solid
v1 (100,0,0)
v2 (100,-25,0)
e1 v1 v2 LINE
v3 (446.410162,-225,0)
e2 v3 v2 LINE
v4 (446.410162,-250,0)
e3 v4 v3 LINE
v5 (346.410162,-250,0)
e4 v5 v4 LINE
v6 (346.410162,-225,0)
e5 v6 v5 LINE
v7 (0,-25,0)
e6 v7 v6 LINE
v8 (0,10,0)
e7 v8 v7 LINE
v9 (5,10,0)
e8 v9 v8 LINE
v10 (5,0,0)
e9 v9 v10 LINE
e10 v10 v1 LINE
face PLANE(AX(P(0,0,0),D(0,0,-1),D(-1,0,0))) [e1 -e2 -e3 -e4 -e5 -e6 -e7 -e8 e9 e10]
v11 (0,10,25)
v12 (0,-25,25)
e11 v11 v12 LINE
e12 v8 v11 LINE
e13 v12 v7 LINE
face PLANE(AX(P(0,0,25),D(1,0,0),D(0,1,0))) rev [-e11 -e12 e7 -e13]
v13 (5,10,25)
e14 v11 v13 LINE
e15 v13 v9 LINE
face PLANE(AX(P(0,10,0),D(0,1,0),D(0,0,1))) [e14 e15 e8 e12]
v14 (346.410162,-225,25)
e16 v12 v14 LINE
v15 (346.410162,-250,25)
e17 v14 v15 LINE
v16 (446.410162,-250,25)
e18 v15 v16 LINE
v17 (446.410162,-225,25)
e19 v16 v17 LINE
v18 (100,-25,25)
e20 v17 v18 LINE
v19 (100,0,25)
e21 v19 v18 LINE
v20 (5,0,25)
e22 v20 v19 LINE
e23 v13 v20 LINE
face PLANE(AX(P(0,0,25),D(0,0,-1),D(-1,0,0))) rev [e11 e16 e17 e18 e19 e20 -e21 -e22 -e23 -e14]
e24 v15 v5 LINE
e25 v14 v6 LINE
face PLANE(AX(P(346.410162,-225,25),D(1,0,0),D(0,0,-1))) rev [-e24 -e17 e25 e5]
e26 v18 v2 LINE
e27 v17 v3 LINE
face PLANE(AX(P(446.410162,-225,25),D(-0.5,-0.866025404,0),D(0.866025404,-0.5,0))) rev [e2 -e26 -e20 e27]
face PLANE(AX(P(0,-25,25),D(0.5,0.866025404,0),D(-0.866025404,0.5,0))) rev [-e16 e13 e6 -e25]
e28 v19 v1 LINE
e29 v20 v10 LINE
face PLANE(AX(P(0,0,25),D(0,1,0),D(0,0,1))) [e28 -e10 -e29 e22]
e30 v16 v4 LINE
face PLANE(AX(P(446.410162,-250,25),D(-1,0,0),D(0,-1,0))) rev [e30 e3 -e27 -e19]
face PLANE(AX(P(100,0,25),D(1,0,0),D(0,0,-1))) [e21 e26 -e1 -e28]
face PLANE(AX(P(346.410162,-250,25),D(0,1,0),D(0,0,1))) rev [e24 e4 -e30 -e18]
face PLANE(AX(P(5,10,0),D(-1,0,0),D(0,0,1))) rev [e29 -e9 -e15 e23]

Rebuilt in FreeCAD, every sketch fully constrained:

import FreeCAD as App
import Part
import Sketcher

V = App.Vector
Q = App.Units.Quantity

doc = App.newDocument("Part")
params = doc.addObject("Spreadsheet::Sheet", "Params")
for row, (alias, value) in enumerate([
    ("sketch1_width", "100 mm"),
    ("sketch1_height", "25 mm"),
    ("sketch1_length", "400 mm"),
    ("pad1_length", "25 mm"),
    ("sketch2_width", "5 mm"),
    ("sketch2_height", "25 mm"),
    ("pad2_length", "10 mm"),
], start=1):
    params.set(f"A{row}", alias)
    params.set(f"B{row}", "=" + value)
    params.setAlias(f"B{row}", alias)

body = doc.addObject("PartDesign::Body", "Body")

# Sketch on XY plane
sketch1 = body.newObject("Sketcher::SketchObject", "Sketch")
sketch1.AttachmentSupport = (doc.getObject("XY_Plane"), [""])
sketch1.MapMode = "FlatFace"
sketch1.addGeometry([
    Part.LineSegment(V(100, 0, 0), V(0, 0, 0)),  # 0
    Part.LineSegment(V(0, 0, 0), V(0, -25, 0)),  # 1
    Part.LineSegment(V(0, -25, 0), V(346, -225, 0)),  # 2
    Part.LineSegment(V(346, -225, 0), V(346, -250, 0)),  # 3
    Part.LineSegment(V(346, -250, 0), V(446, -250, 0)),  # 4
    Part.LineSegment(V(446, -250, 0), V(446, -225, 0)),  # 5
    Part.LineSegment(V(446, -225, 0), V(100, -25, 0)),  # 6
    Part.LineSegment(V(100, -25, 0), V(100, 0, 0)),  # 7
], False)
sketch1.addConstraint([
    Sketcher.Constraint("Coincident", 0, 2, 1, 1),
    Sketcher.Constraint("Coincident", 1, 2, 2, 1),
    Sketcher.Constraint("Coincident", 2, 2, 3, 1),
    Sketcher.Constraint("Coincident", 3, 2, 4, 1),
    Sketcher.Constraint("Coincident", 4, 2, 5, 1),
    Sketcher.Constraint("Coincident", 5, 2, 6, 1),
    Sketcher.Constraint("Coincident", 6, 2, 7, 1),
    Sketcher.Constraint("Coincident", 7, 2, 0, 1),
    Sketcher.Constraint("Horizontal", 0),
    Sketcher.Constraint("Vertical", 1),
    Sketcher.Constraint("Vertical", 3),
    Sketcher.Constraint("Horizontal", 4),
    Sketcher.Constraint("Vertical", 5),
    Sketcher.Constraint("Vertical", 7),
    Sketcher.Constraint("Coincident", 0, 2, -1, 1),
    Sketcher.Constraint("Parallel", 2, 6),
    Sketcher.Constraint("Horizontal", 2, 2, 5, 2),
    Sketcher.Constraint("Horizontal", 1, 2, 6, 2),
    Sketcher.Constraint("Equal", 1, 3),
    Sketcher.Constraint("DistanceX", 0, 2, 0, 1, Q("100 mm")),
    Sketcher.Constraint("DistanceY", 1, 2, 1, 1, Q("25 mm")),
    Sketcher.Constraint("Angle", 2, Q("-30 deg")),
    Sketcher.Constraint("Distance", 2, Q("400 mm")),
])
sketch1.setExpression("Constraints[19]", "Params.sketch1_width")
sketch1.setExpression("Constraints[20]", "Params.sketch1_height")
sketch1.setExpression("Constraints[22]", "Params.sketch1_length")
pad1 = body.newObject("PartDesign::Pad", "Pad")
pad1.Profile = sketch1
pad1.setExpression("Length", "Params.pad1_length")

# Sketch on XZ plane
sketch2 = body.newObject("Sketcher::SketchObject", "Sketch001")
sketch2.AttachmentSupport = (doc.getObject("XZ_Plane"), [""])
sketch2.MapMode = "FlatFace"
sketch2.addGeometry([
    Part.LineSegment(V(0, 0, 0), V(0, 25, 0)),
    Part.LineSegment(V(0, 25, 0), V(5, 25, 0)),
    Part.LineSegment(V(5, 25, 0), V(5, 0, 0)),
    Part.LineSegment(V(5, 0, 0), V(0, 0, 0)),
], False)
sketch2.addConstraint([
    Sketcher.Constraint("Coincident", 0, 2, 1, 1),
    Sketcher.Constraint("Coincident", 1, 2, 2, 1),
    Sketcher.Constraint("Coincident", 2, 2, 3, 1),
    Sketcher.Constraint("Coincident", 3, 2, 0, 1),
    Sketcher.Constraint("Vertical", 0),
    Sketcher.Constraint("Horizontal", 1),
    Sketcher.Constraint("Vertical", 2),
    Sketcher.Constraint("Horizontal", 3),
    Sketcher.Constraint("Coincident", 3, 2, -1, 1),
    Sketcher.Constraint("DistanceX", 1, 1, 1, 2, Q("5 mm")),
    Sketcher.Constraint("DistanceY", 0, 1, 0, 2, Q("25 mm")),
])
sketch2.setExpression("Constraints[9]", "Params.sketch2_width")
sketch2.setExpression("Constraints[10]", "Params.sketch2_height")
pad2 = body.newObject("PartDesign::Pad", "Pad001")
pad2.Profile = sketch2
pad2.setExpression("Length", "Params.pad2_length")
pad2.Reversed = True

doc.recompute()
